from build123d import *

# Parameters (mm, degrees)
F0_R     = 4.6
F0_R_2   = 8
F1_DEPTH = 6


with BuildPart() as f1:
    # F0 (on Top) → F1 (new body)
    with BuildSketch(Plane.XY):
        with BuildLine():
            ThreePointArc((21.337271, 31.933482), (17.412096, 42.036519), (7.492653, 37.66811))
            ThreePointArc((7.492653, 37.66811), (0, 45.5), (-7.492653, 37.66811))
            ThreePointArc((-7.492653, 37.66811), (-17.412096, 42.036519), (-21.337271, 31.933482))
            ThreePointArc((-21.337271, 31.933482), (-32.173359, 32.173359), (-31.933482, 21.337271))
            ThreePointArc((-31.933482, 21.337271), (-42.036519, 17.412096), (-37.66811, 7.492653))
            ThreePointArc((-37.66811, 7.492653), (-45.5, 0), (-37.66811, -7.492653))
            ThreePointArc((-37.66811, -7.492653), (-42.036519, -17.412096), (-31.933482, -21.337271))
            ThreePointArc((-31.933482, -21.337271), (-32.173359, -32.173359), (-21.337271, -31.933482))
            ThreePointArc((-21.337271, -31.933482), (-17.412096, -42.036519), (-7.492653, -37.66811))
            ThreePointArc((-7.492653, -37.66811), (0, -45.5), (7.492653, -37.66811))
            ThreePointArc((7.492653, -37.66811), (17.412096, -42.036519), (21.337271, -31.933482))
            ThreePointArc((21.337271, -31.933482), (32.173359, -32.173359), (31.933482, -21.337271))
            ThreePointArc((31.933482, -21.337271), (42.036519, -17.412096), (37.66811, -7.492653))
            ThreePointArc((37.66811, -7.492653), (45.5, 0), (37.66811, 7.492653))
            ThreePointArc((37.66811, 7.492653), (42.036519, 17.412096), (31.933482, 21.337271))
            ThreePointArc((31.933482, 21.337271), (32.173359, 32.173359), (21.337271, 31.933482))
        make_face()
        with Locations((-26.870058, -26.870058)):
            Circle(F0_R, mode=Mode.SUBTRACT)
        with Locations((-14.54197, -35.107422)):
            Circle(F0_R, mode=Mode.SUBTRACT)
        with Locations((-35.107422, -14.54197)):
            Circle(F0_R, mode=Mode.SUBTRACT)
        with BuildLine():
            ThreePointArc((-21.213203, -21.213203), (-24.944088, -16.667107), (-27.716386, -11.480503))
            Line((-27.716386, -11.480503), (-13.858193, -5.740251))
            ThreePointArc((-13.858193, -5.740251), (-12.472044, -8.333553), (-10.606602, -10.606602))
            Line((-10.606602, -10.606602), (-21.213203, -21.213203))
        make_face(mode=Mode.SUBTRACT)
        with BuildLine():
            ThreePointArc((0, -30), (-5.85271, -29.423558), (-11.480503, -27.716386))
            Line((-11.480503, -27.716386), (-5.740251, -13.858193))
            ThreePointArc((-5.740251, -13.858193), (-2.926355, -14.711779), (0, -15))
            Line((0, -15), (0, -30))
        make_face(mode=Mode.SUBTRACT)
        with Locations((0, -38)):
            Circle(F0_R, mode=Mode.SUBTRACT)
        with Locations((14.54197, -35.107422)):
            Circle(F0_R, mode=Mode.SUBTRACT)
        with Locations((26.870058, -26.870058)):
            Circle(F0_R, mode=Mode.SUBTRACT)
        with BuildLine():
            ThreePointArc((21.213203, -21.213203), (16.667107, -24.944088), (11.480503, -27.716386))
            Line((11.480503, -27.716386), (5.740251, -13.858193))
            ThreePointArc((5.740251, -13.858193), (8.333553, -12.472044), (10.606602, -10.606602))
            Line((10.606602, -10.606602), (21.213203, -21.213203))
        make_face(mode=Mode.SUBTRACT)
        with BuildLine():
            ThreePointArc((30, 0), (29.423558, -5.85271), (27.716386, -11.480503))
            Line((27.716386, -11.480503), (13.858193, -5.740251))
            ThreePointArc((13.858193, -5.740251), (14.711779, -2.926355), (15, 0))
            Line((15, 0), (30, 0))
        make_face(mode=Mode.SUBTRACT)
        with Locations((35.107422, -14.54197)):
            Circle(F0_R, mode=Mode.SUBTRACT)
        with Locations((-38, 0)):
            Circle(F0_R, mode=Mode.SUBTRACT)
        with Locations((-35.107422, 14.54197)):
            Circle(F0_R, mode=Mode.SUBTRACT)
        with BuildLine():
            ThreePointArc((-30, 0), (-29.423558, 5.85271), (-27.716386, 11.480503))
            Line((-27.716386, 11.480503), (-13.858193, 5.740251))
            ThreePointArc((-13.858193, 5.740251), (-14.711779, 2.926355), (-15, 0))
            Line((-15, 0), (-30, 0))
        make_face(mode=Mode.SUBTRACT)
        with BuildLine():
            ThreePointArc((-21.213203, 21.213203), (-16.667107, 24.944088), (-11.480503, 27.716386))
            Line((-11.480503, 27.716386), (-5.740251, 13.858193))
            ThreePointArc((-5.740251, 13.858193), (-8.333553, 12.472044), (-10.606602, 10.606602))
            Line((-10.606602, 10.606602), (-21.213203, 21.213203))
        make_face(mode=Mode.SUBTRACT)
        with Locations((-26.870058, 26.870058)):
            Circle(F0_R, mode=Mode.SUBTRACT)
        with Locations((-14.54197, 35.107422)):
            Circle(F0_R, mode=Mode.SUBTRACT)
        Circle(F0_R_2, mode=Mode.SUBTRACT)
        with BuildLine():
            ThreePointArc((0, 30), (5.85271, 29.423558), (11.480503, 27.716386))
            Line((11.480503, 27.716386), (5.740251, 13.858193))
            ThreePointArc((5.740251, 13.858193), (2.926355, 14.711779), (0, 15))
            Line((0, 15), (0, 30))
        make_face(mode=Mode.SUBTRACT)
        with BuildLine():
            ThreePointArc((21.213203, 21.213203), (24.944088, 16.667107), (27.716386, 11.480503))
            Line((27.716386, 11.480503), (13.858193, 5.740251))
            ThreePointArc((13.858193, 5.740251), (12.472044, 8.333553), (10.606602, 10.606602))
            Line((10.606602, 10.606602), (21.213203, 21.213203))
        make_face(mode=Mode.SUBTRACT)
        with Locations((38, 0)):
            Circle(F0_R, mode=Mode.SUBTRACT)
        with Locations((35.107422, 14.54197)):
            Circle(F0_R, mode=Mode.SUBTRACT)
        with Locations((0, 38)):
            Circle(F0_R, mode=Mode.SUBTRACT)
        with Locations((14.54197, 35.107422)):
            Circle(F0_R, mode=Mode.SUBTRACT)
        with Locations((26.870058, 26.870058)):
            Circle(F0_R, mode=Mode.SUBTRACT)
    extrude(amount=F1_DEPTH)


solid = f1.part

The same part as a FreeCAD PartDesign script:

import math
import FreeCAD as App
import Part
import Sketcher

V = App.Vector
Q = App.Units.Quantity

doc = App.newDocument("Part")
body = doc.addObject("PartDesign::Body", "Body")

# Sketch on XY plane
sketch1 = body.newObject("Sketcher::SketchObject", "Sketch")
sketch1.AttachmentSupport = (doc.getObject("XY_Plane"), [""])
sketch1.MapMode = "FlatFace"
sketch1.addGeometry(Part.ArcOfCircle(Part.Circle(V(14.541971, 35.107422, 0), V(0, 0, 1), 7.5), math.radians(-25.036277), math.radians(160.036281)), False)
sketch1.addGeometry(Part.ArcOfCircle(Part.Circle(V(0, 38, 0), V(0, 0, 1), 7.5), math.radians(-2.536281), math.radians(182.536281)), False)
sketch1.addGeometry(Part.ArcOfCircle(Part.Circle(V(-14.541971, 35.107422, 0), V(0, 0, 1), 7.5), math.radians(19.963719), math.radians(205.036277)), False)
sketch1.addGeometry(Part.ArcOfCircle(Part.Circle(V(-26.870058, 26.870058, 0), V(0, 0, 1), 7.5), math.radians(42.463717), math.radians(227.536283)), False)
sketch1.addGeometry(Part.ArcOfCircle(Part.Circle(V(-35.107422, 14.541971, 0), V(0, 0, 1), 7.5), math.radians(64.963723), math.radians(250.036281)), False)
sketch1.addGeometry(Part.ArcOfCircle(Part.Circle(V(-38, 0, 0), V(0, 0, 1), 7.5), math.radians(87.463719), math.radians(272.536281)), False)
sketch1.addGeometry(Part.ArcOfCircle(Part.Circle(V(-35.107422, -14.541971, 0), V(0, 0, 1), 7.5), math.radians(109.963719), math.radians(295.036277)), False)
sketch1.addGeometry(Part.ArcOfCircle(Part.Circle(V(-26.870058, -26.870058, 0), V(0, 0, 1), 7.5), math.radians(132.463717), math.radians(317.536283)), False)
sketch1.addGeometry(Part.ArcOfCircle(Part.Circle(V(-14.541971, -35.107422, 0), V(0, 0, 1), 7.5), math.radians(154.963723), math.radians(340.036281)), False)
sketch1.addGeometry(Part.ArcOfCircle(Part.Circle(V(0, -38, 0), V(0, 0, 1), 7.5), math.radians(177.463719), math.radians(362.536281)), False)
sketch1.addGeometry(Part.ArcOfCircle(Part.Circle(V(14.541971, -35.107422, 0), V(0, 0, 1), 7.5), math.radians(-160.036281), math.radians(25.036277)), False)
sketch1.addGeometry(Part.ArcOfCircle(Part.Circle(V(26.870058, -26.870058, 0), V(0, 0, 1), 7.5), math.radians(-137.536283), math.radians(47.536283)), False)
sketch1.addGeometry(Part.ArcOfCircle(Part.Circle(V(35.107422, -14.541971, 0), V(0, 0, 1), 7.5), math.radians(-115.036277), math.radians(70.036281)), False)
sketch1.addGeometry(Part.ArcOfCircle(Part.Circle(V(38, 0, 0), V(0, 0, 1), 7.5), math.radians(-92.536281), math.radians(92.536281)), False)
sketch1.addGeometry(Part.ArcOfCircle(Part.Circle(V(35.107422, 14.541971, 0), V(0, 0, 1), 7.5), math.radians(-70.036281), math.radians(115.036277)), False)
sketch1.addGeometry(Part.ArcOfCircle(Part.Circle(V(26.870058, 26.870058, 0), V(0, 0, 1), 7.5), math.radians(-47.536283), math.radians(137.536283)), False)
sketch1.addGeometry(Part.Circle(V(-26.870058, -26.870058, 0), V(0, 0, 1), 4.6), False)
sketch1.addGeometry(Part.Circle(V(-14.54197, -35.107422, 0), V(0, 0, 1), 4.6), False)
sketch1.addGeometry(Part.LineSegment(V(0, -15, 0), V(0, -30, 0)), False)
sketch1.addGeometry(Part.ArcOfCircle(Part.Circle(V(0.000004, 0.000018, 0), V(0, 0, 1), 30.000018), math.radians(-112.499993), math.radians(-90.000007)), False)
sketch1.addGeometry(Part.LineSegment(V(-11.480503, -27.716386, 0), V(-5.740251, -13.858193, 0)), False)
sketch1.addGeometry(Part.ArcOfCircle(Part.Circle(V(0.000001, 0.000004, 0), V(0, 0, 1), 15.000004), math.radians(-112.499997), math.radians(-90.000005)), False)
sketch1.addGeometry(Part.Circle(V(-35.107422, -14.54197, 0), V(0, 0, 1), 4.6), False)
sketch1.addGeometry(Part.LineSegment(V(-10.606602, -10.606602, 0), V(-21.213203, -21.213203, 0)), False)
sketch1.addGeometry(Part.ArcOfCircle(Part.Circle(V(0, 0.000002, 0), V(0, 0, 1), 30), math.radians(-157.499997), math.radians(-134.999997)), False)
sketch1.addGeometry(Part.LineSegment(V(-27.716386, -11.480503, 0), V(-13.858193, -5.740251, 0)), False)
sketch1.addGeometry(Part.ArcOfCircle(Part.Circle(V(0.000024, 0.000014, 0), V(0, 0, 1), 15.000028), math.radians(-157.499986), math.radians(-135.000026)), False)
sketch1.addGeometry(Part.Circle(V(0, -38, 0), V(0, 0, 1), 4.6), False)
sketch1.addGeometry(Part.Circle(V(14.54197, -35.107422, 0), V(0, 0, 1), 4.6), False)
sketch1.addGeometry(Part.Circle(V(26.870058, -26.870058, 0), V(0, 0, 1), 4.6), False)
sketch1.addGeometry(Part.LineSegment(V(10.606602, -10.606602, 0), V(21.213203, -21.213203, 0)), False)
sketch1.addGeometry(Part.ArcOfCircle(Part.Circle(V(-0.000002, 0, 0), V(0, 0, 1), 30), math.radians(-67.499997), math.radians(-44.999997)), False)
sketch1.addGeometry(Part.LineSegment(V(11.480503, -27.716386, 0), V(5.740251, -13.858193, 0)), False)
sketch1.addGeometry(Part.ArcOfCircle(Part.Circle(V(-0.000014, 0.000024, 0), V(0, 0, 1), 15.000028), math.radians(-67.499986), math.radians(-45.000026)), False)
sketch1.addGeometry(Part.Circle(V(35.107422, -14.54197, 0), V(0, 0, 1), 4.6), False)
sketch1.addGeometry(Part.LineSegment(V(15, 0, 0), V(30, 0, 0)), False)
sketch1.addGeometry(Part.ArcOfCircle(Part.Circle(V(-0.000018, 0.000004, 0), V(0, 0, 1), 30.000018), math.radians(-22.499993), math.radians(-0.000007)), False)
sketch1.addGeometry(Part.LineSegment(V(27.716386, -11.480503, 0), V(13.858193, -5.740251, 0)), False)
sketch1.addGeometry(Part.ArcOfCircle(Part.Circle(V(-0.000004, 0.000001, 0), V(0, 0, 1), 15.000004), math.radians(-22.499997), math.radians(-0.000005)), False)
sketch1.addGeometry(Part.Circle(V(-38, 0, 0), V(0, 0, 1), 4.6), False)
sketch1.addGeometry(Part.LineSegment(V(-15, 0, 0), V(-30, 0, 0)), False)
sketch1.addGeometry(Part.ArcOfCircle(Part.Circle(V(0.000018, -0.000004, 0), V(0, 0, 1), 30.000018), math.radians(157.500007), math.radians(179.999993)), False)
sketch1.addGeometry(Part.LineSegment(V(-27.716386, 11.480503, 0), V(-13.858193, 5.740251, 0)), False)
sketch1.addGeometry(Part.ArcOfCircle(Part.Circle(V(0.000004, -0.000001, 0), V(0, 0, 1), 15.000004), math.radians(157.500003), math.radians(179.999995)), False)
sketch1.addGeometry(Part.Circle(V(-35.107422, 14.54197, 0), V(0, 0, 1), 4.6), False)
sketch1.addGeometry(Part.LineSegment(V(-10.606602, 10.606602, 0), V(-21.213203, 21.213203, 0)), False)
sketch1.addGeometry(Part.ArcOfCircle(Part.Circle(V(0.000002, 0, 0), V(0, 0, 1), 30), math.radians(112.500003), math.radians(135.000003)), False)
sketch1.addGeometry(Part.LineSegment(V(-11.480503, 27.716386, 0), V(-5.740251, 13.858193, 0)), False)
sketch1.addGeometry(Part.ArcOfCircle(Part.Circle(V(0.000014, -0.000024, 0), V(0, 0, 1), 15.000028), math.radians(112.500014), math.radians(134.999974)), False)
sketch1.addGeometry(Part.Circle(V(-26.870058, 26.870058, 0), V(0, 0, 1), 4.6), False)
sketch1.addGeometry(Part.Circle(V(-14.54197, 35.107422, 0), V(0, 0, 1), 4.6), False)
sketch1.addGeometry(Part.Circle(V(0, 0, 0), V(0, 0, 1), 8), False)
sketch1.addGeometry(Part.LineSegment(V(10.606602, 10.606602, 0), V(21.213203, 21.213203, 0)), False)
sketch1.addGeometry(Part.ArcOfCircle(Part.Circle(V(0, -0.000002, 0), V(0, 0, 1), 30), math.radians(22.500003), math.radians(45.000003)), False)
sketch1.addGeometry(Part.LineSegment(V(27.716386, 11.480503, 0), V(13.858193, 5.740251, 0)), False)
sketch1.addGeometry(Part.ArcOfCircle(Part.Circle(V(-0.000024, -0.000014, 0), V(0, 0, 1), 15.000028), math.radians(22.500014), math.radians(44.999974)), False)
sketch1.addGeometry(Part.Circle(V(38, 0, 0), V(0, 0, 1), 4.6), False)
sketch1.addGeometry(Part.Circle(V(35.107422, 14.54197, 0), V(0, 0, 1), 4.6), False)
sketch1.addGeometry(Part.LineSegment(V(0, 15, 0), V(0, 30, 0)), False)
sketch1.addGeometry(Part.ArcOfCircle(Part.Circle(V(-0.000004, -0.000018, 0), V(0, 0, 1), 30.000018), math.radians(67.500007), math.radians(89.999993)), False)
sketch1.addGeometry(Part.LineSegment(V(11.480503, 27.716386, 0), V(5.740251, 13.858193, 0)), False)
sketch1.addGeometry(Part.ArcOfCircle(Part.Circle(V(-0.000001, -0.000004, 0), V(0, 0, 1), 15.000004), math.radians(67.500003), math.radians(89.999995)), False)
sketch1.addGeometry(Part.Circle(V(0, 38, 0), V(0, 0, 1), 4.6), False)
sketch1.addGeometry(Part.Circle(V(14.54197, 35.107422, 0), V(0, 0, 1), 4.6), False)
sketch1.addGeometry(Part.Circle(V(26.870058, 26.870058, 0), V(0, 0, 1), 4.6), False)
sketch1.addConstraint(Sketcher.Constraint("Coincident", 0, 2, 1, 1))
sketch1.addConstraint(Sketcher.Constraint("Coincident", 1, 2, 2, 1))
sketch1.addConstraint(Sketcher.Constraint("Coincident", 2, 2, 3, 1))
sketch1.addConstraint(Sketcher.Constraint("Coincident", 3, 2, 4, 1))
sketch1.addConstraint(Sketcher.Constraint("Coincident", 4, 2, 5, 1))
sketch1.addConstraint(Sketcher.Constraint("Coincident", 5, 2, 6, 1))
sketch1.addConstraint(Sketcher.Constraint("Coincident", 6, 2, 7, 1))
sketch1.addConstraint(Sketcher.Constraint("Coincident", 7, 2, 8, 1))
sketch1.addConstraint(Sketcher.Constraint("Coincident", 8, 2, 9, 1))
sketch1.addConstraint(Sketcher.Constraint("Coincident", 9, 2, 10, 1))
sketch1.addConstraint(Sketcher.Constraint("Coincident", 10, 2, 11, 1))
sketch1.addConstraint(Sketcher.Constraint("Coincident", 11, 2, 12, 1))
sketch1.addConstraint(Sketcher.Constraint("Coincident", 12, 2, 13, 1))
sketch1.addConstraint(Sketcher.Constraint("Coincident", 13, 2, 14, 1))
sketch1.addConstraint(Sketcher.Constraint("Coincident", 14, 2, 15, 1))
sketch1.addConstraint(Sketcher.Constraint("Coincident", 15, 2, 0, 1))
sketch1.addConstraint(Sketcher.Constraint("Coincident", 18, 2, 19, 2))
sketch1.addConstraint(Sketcher.Constraint("Coincident", 19, 1, 20, 1))
sketch1.addConstraint(Sketcher.Constraint("Coincident", 20, 2, 21, 1))
sketch1.addConstraint(Sketcher.Constraint("Coincident", 21, 2, 18, 1))
sketch1.addConstraint(Sketcher.Constraint("Coincident", 23, 2, 24, 2))
sketch1.addConstraint(Sketcher.Constraint("Coincident", 24, 1, 25, 1))
sketch1.addConstraint(Sketcher.Constraint("Coincident", 25, 2, 26, 1))
sketch1.addConstraint(Sketcher.Constraint("Coincident", 26, 2, 23, 1))
sketch1.addConstraint(Sketcher.Constraint("Coincident", 30, 2, 31, 2))
sketch1.addConstraint(Sketcher.Constraint("Coincident", 31, 1, 32, 1))
sketch1.addConstraint(Sketcher.Constraint("Coincident", 32, 2, 33, 1))
sketch1.addConstraint(Sketcher.Constraint("Coincident", 33, 2, 30, 1))
sketch1.addConstraint(Sketcher.Constraint("Coincident", 35, 2, 36, 2))
sketch1.addConstraint(Sketcher.Constraint("Coincident", 36, 1, 37, 1))
sketch1.addConstraint(Sketcher.Constraint("Coincident", 37, 2, 38, 1))
sketch1.addConstraint(Sketcher.Constraint("Coincident", 38, 2, 35, 1))
sketch1.addConstraint(Sketcher.Constraint("Coincident", 40, 2, 41, 2))
sketch1.addConstraint(Sketcher.Constraint("Coincident", 41, 1, 42, 1))
sketch1.addConstraint(Sketcher.Constraint("Coincident", 42, 2, 43, 1))
sketch1.addConstraint(Sketcher.Constraint("Coincident", 43, 2, 40, 1))
sketch1.addConstraint(Sketcher.Constraint("Coincident", 45, 2, 46, 2))
sketch1.addConstraint(Sketcher.Constraint("Coincident", 46, 1, 47, 1))
sketch1.addConstraint(Sketcher.Constraint("Coincident", 47, 2, 48, 1))
sketch1.addConstraint(Sketcher.Constraint("Coincident", 48, 2, 45, 1))
sketch1.addConstraint(Sketcher.Constraint("Coincident", 52, 2, 53, 2))
sketch1.addConstraint(Sketcher.Constraint("Coincident", 53, 1, 54, 1))
sketch1.addConstraint(Sketcher.Constraint("Coincident", 54, 2, 55, 1))
sketch1.addConstraint(Sketcher.Constraint("Coincident", 55, 2, 52, 1))
sketch1.addConstraint(Sketcher.Constraint("Coincident", 58, 2, 59, 2))
sketch1.addConstraint(Sketcher.Constraint("Coincident", 59, 1, 60, 1))
sketch1.addConstraint(Sketcher.Constraint("Coincident", 60, 2, 61, 1))
sketch1.addConstraint(Sketcher.Constraint("Coincident", 61, 2, 58, 1))
sketch1.addConstraint(Sketcher.Constraint("Vertical", 18))
sketch1.addConstraint(Sketcher.Constraint("Horizontal", 35))
sketch1.addConstraint(Sketcher.Constraint("Horizontal", 40))
sketch1.addConstraint(Sketcher.Constraint("Vertical", 58))
sketch1.addConstraint(Sketcher.Constraint("Coincident", 21, 3, -1, 1))
sketch1.addConstraint(Sketcher.Constraint("Coincident", 24, 3, -1, 1))
sketch1.addConstraint(Sketcher.Constraint("Coincident", 31, 3, -1, 1))
sketch1.addConstraint(Sketcher.Constraint("Coincident", 38, 3, -1, 1))
sketch1.addConstraint(Sketcher.Constraint("Coincident", 43, 3, -1, 1))
sketch1.addConstraint(Sketcher.Constraint("Coincident", 46, 3, -1, 1))
sketch1.addConstraint(Sketcher.Constraint("Coincident", 51, 3, -1, 1))
sketch1.addConstraint(Sketcher.Constraint("Coincident", 53, 3, -1, 1))
sketch1.addConstraint(Sketcher.Constraint("Coincident", 61, 3, -1, 1))
sketch1.addConstraint(Sketcher.Constraint("Coincident", 16, 3, 7, 3))
sketch1.addConstraint(Sketcher.Constraint("Coincident", 17, 3, 8, 3))
sketch1.addConstraint(Sketcher.Constraint("Coincident", 22, 3, 6, 3))
sketch1.addConstraint(Sketcher.Constraint("Coincident", 27, 3, 9, 3))
sketch1.addConstraint(Sketcher.Constraint("Coincident", 28, 3, 10, 3))
sketch1.addConstraint(Sketcher.Constraint("Coincident", 29, 3, 11, 3))
sketch1.addConstraint(Sketcher.Constraint("Coincident", 34, 3, 12, 3))
sketch1.addConstraint(Sketcher.Constraint("Coincident", 39, 3, 5, 3))
sketch1.addConstraint(Sketcher.Constraint("Coincident", 44, 3, 4, 3))
sketch1.addConstraint(Sketcher.Constraint("Coincident", 49, 3, 3, 3))
sketch1.addConstraint(Sketcher.Constraint("Coincident", 50, 3, 2, 3))
sketch1.addConstraint(Sketcher.Constraint("Coincident", 56, 3, 13, 3))
sketch1.addConstraint(Sketcher.Constraint("Coincident", 57, 3, 14, 3))
sketch1.addConstraint(Sketcher.Constraint("Coincident", 62, 3, 1, 3))
sketch1.addConstraint(Sketcher.Constraint("Coincident", 63, 3, 0, 3))
sketch1.addConstraint(Sketcher.Constraint("Coincident", 64, 3, 15, 3))
sketch1.addConstraint(Sketcher.Constraint("Equal", 0, 1))
sketch1.addConstraint(Sketcher.Constraint("Equal", 1, 2))
sketch1.addConstraint(Sketcher.Constraint("Equal", 2, 3))
sketch1.addConstraint(Sketcher.Constraint("Equal", 3, 4))
sketch1.addConstraint(Sketcher.Constraint("Equal", 4, 5))
sketch1.addConstraint(Sketcher.Constraint("Equal", 5, 6))
sketch1.addConstraint(Sketcher.Constraint("Equal", 6, 7))
sketch1.addConstraint(Sketcher.Constraint("Equal", 7, 8))
sketch1.addConstraint(Sketcher.Constraint("Equal", 8, 9))
sketch1.addConstraint(Sketcher.Constraint("Equal", 9, 10))
sketch1.addConstraint(Sketcher.Constraint("Equal", 10, 11))
sketch1.addConstraint(Sketcher.Constraint("Equal", 11, 12))
sketch1.addConstraint(Sketcher.Constraint("Equal", 12, 13))
sketch1.addConstraint(Sketcher.Constraint("Equal", 13, 14))
sketch1.addConstraint(Sketcher.Constraint("Equal", 14, 15))
sketch1.addConstraint(Sketcher.Constraint("Equal", 16, 17))
sketch1.addConstraint(Sketcher.Constraint("Equal", 17, 22))
sketch1.addConstraint(Sketcher.Constraint("Equal", 22, 27))
sketch1.addConstraint(Sketcher.Constraint("Equal", 27, 28))
sketch1.addConstraint(Sketcher.Constraint("Equal", 28, 29))
sketch1.addConstraint(Sketcher.Constraint("Equal", 24, 31))
sketch1.addConstraint(Sketcher.Constraint("Equal", 26, 33))
sketch1.addConstraint(Sketcher.Constraint("Equal", 29, 34))
sketch1.addConstraint(Sketcher.Constraint("Equal", 19, 36))
sketch1.addConstraint(Sketcher.Constraint("Equal", 21, 38))
sketch1.addConstraint(Sketcher.Constraint("Equal", 34, 39))
sketch1.addConstraint(Sketcher.Constraint("Equal", 36, 41))
sketch1.addConstraint(Sketcher.Constraint("Equal", 38, 43))
sketch1.addConstraint(Sketcher.Constraint("Equal", 39, 44))
sketch1.addConstraint(Sketcher.Constraint("Equal", 31, 46))
sketch1.addConstraint(Sketcher.Constraint("Equal", 33, 48))
sketch1.addConstraint(Sketcher.Constraint("Equal", 44, 49))
sketch1.addConstraint(Sketcher.Constraint("Equal", 49, 50))
sketch1.addConstraint(Sketcher.Constraint("Equal", 46, 53))
sketch1.addConstraint(Sketcher.Constraint("Equal", 48, 55))
sketch1.addConstraint(Sketcher.Constraint("Equal", 50, 56))
sketch1.addConstraint(Sketcher.Constraint("Equal", 56, 57))
sketch1.addConstraint(Sketcher.Constraint("Equal", 41, 59))
sketch1.addConstraint(Sketcher.Constraint("Equal", 43, 61))
sketch1.addConstraint(Sketcher.Constraint("Equal", 57, 62))
sketch1.addConstraint(Sketcher.Constraint("Equal", 62, 63))
sketch1.addConstraint(Sketcher.Constraint("Equal", 63, 64))
sketch1.addConstraint(Sketcher.Constraint("Symmetric", 0, 3, 8, 3, -1, 1))
sketch1.addConstraint(Sketcher.Constraint("Symmetric", 1, 3, 9, 3, -1, 1))
sketch1.addConstraint(Sketcher.Constraint("Symmetric", 2, 3, 10, 3, -1, 1))
sketch1.addConstraint(Sketcher.Constraint("Symmetric", 3, 3, 11, 3, -1, 1))
sketch1.addConstraint(Sketcher.Constraint("Symmetric", 4, 3, 12, 3, -1, 1))
sketch1.addConstraint(Sketcher.Constraint("Symmetric", 5, 3, 13, 3, -1, 1))
sketch1.addConstraint(Sketcher.Constraint("Symmetric", 6, 3, 14, 3, -1, 1))
sketch1.addConstraint(Sketcher.Constraint("Symmetric", 7, 3, 15, 3, -1, 1))
sketch1.addConstraint(Sketcher.Constraint("Symmetric", 36, 3, 41, 3, -1, 1))
sketch1.addConstraint(Sketcher.Constraint("Symmetric", 33, 3, 48, 3, -1, 1))
sketch1.addConstraint(Sketcher.Constraint("Symmetric", 26, 3, 55, 3, -1, 1))
sketch1.addConstraint(Sketcher.Constraint("Symmetric", 19, 3, 59, 3, -1, 1))
sketch1.addConstraint(Sketcher.Constraint("Symmetric", 0, 3, 2, 3, -2))
sketch1.addConstraint(Sketcher.Constraint("Symmetric", 7, 3, 11, 3, -2))
sketch1.addConstraint(Sketcher.Constraint("Symmetric", 6, 3, 12, 3, -2))
sketch1.addConstraint(Sketcher.Constraint("Symmetric", 19, 1, 31, 1, -2))
sketch1.addConstraint(Sketcher.Constraint("Symmetric", 20, 2, 32, 2, -2))
sketch1.addConstraint(Sketcher.Constraint("Symmetric", 26, 2, 33, 2, -2))
sketch1.addConstraint(Sketcher.Constraint("Symmetric", 24, 1, 36, 1, -2))
sketch1.addConstraint(Sketcher.Constraint("Symmetric", 25, 2, 37, 2, -2))
sketch1.addConstraint(Sketcher.Constraint("PointOnObject", 1, 3, -2))
sketch1.addConstraint(Sketcher.Constraint("PointOnObject", 5, 3, -1))
sketch1.addConstraint(Sketcher.Constraint("PointOnObject", 18, 2, -2))
sketch1.addConstraint(Sketcher.Constraint("PointOnObject", 35, 2, -1))
sketch1.addConstraint(Sketcher.Constraint("PointOnObject", 40, 2, -1))
sketch1.addConstraint(Sketcher.Constraint("PointOnObject", 58, 2, -2))
sketch1.addConstraint(Sketcher.Constraint("Perpendicular", 23, 30))
sketch1.addConstraint(Sketcher.Constraint("Perpendicular", 25, 32))
sketch1.addConstraint(Sketcher.Constraint("Parallel", 37, 42))
sketch1.addConstraint(Sketcher.Constraint("Parallel", 30, 45))
sketch1.addConstraint(Sketcher.Constraint("Parallel", 32, 47))
sketch1.addConstraint(Sketcher.Constraint("Perpendicular", 45, 52))
sketch1.addConstraint(Sketcher.Constraint("Perpendicular", 47, 54))
sketch1.addConstraint(Sketcher.Constraint("Perpendicular", 42, 60))
sketch1.addConstraint(Sketcher.Constraint("Horizontal", 24, 3, 36, 3))
sketch1.addConstraint(Sketcher.Constraint("Horizontal", 23, 2, 30, 2))
sketch1.addConstraint(Sketcher.Constraint("Horizontal", 45, 2, 52, 2))
sketch1.addConstraint(Sketcher.Constraint("Horizontal", 41, 1, 53, 1))
sketch1.addConstraint(Sketcher.Constraint("Horizontal", 46, 1, 59, 1))
sketch1.addConstraint(Sketcher.Constraint("Vertical", 19, 3, 43, 3))
sketch1.addConstraint(Sketcher.Constraint("Vertical", 24, 1, 41, 1))
sketch1.addConstraint(Sketcher.Constraint("Vertical", 23, 2, 45, 2))
sketch1.addConstraint(Sketcher.Constraint("Vertical", 19, 1, 46, 1))
sketch1.addConstraint(Sketcher.Constraint("Equal", 20, 23))
sketch1.addConstraint(Sketcher.Constraint("Diameter", 51, Q("16 mm")))
sketch1.addConstraint(Sketcher.Constraint("Radius", 24, Q("30 mm")))
sketch1.addConstraint(Sketcher.Constraint("Diameter", 16, Q("9.2 mm")))
sketch1.addConstraint(Sketcher.Constraint("Radius", 0, Q("7.5 mm")))
sketch1.addConstraint(Sketcher.Constraint("DistanceX", 35, 1, 35, 2, Q("15 mm")))
sketch1.addConstraint(Sketcher.Constraint("Distance", 20, Q("15 mm")))
sketch1.addConstraint(Sketcher.Constraint("DistanceY", -1, 1, 1, 3, Q("38 mm")))
sketch1.addConstraint(Sketcher.Constraint("DistanceX", 5, 3, -1, 1, Q("38 mm")))
sketch1.addConstraint(Sketcher.Constraint("Angle", 20, Q("67.499998 deg")))
sketch1.addConstraint(Sketcher.Constraint("Radius", 26, Q("15.000028 mm")))
sketch1.addConstraint(Sketcher.Constraint("DistanceX", -1, 1, 0, 3, Q("14.541971 mm")))
sketch1.addConstraint(Sketcher.Constraint("DistanceX", 3, 3, -1, 1, Q("26.870058 mm")))
sketch1.addConstraint(Sketcher.Constraint("DistanceY", -1, 1, 3, 3, Q("26.870058 mm")))
sketch1.addConstraint(Sketcher.Constraint("DistanceY", -1, 1, 4, 3, Q("14.541971 mm")))
sketch1.addConstraint(Sketcher.Constraint("DistanceY", -1, 1, 0, 2, Q("37.66811 mm")))
sketch1.addConstraint(Sketcher.Constraint("DistanceX", 3, 2, -1, 1, Q("31.933482 mm")))
sketch1.addConstraint(Sketcher.Constraint("DistanceX", 20, 2, -1, 1, Q("5.740251 mm")))
sketch1.addConstraint(Sketcher.Constraint("DistanceY", 25, 2, -1, 1, Q("5.740251 mm")))
sketch1.addConstraint(Sketcher.Constraint("DistanceX", 23, 2, -1, 1, Q("21.213203 mm")))
pad1 = body.newObject("PartDesign::Pad", "Pad")
pad1.Profile = sketch1
pad1.Length = 6

doc.recompute()
